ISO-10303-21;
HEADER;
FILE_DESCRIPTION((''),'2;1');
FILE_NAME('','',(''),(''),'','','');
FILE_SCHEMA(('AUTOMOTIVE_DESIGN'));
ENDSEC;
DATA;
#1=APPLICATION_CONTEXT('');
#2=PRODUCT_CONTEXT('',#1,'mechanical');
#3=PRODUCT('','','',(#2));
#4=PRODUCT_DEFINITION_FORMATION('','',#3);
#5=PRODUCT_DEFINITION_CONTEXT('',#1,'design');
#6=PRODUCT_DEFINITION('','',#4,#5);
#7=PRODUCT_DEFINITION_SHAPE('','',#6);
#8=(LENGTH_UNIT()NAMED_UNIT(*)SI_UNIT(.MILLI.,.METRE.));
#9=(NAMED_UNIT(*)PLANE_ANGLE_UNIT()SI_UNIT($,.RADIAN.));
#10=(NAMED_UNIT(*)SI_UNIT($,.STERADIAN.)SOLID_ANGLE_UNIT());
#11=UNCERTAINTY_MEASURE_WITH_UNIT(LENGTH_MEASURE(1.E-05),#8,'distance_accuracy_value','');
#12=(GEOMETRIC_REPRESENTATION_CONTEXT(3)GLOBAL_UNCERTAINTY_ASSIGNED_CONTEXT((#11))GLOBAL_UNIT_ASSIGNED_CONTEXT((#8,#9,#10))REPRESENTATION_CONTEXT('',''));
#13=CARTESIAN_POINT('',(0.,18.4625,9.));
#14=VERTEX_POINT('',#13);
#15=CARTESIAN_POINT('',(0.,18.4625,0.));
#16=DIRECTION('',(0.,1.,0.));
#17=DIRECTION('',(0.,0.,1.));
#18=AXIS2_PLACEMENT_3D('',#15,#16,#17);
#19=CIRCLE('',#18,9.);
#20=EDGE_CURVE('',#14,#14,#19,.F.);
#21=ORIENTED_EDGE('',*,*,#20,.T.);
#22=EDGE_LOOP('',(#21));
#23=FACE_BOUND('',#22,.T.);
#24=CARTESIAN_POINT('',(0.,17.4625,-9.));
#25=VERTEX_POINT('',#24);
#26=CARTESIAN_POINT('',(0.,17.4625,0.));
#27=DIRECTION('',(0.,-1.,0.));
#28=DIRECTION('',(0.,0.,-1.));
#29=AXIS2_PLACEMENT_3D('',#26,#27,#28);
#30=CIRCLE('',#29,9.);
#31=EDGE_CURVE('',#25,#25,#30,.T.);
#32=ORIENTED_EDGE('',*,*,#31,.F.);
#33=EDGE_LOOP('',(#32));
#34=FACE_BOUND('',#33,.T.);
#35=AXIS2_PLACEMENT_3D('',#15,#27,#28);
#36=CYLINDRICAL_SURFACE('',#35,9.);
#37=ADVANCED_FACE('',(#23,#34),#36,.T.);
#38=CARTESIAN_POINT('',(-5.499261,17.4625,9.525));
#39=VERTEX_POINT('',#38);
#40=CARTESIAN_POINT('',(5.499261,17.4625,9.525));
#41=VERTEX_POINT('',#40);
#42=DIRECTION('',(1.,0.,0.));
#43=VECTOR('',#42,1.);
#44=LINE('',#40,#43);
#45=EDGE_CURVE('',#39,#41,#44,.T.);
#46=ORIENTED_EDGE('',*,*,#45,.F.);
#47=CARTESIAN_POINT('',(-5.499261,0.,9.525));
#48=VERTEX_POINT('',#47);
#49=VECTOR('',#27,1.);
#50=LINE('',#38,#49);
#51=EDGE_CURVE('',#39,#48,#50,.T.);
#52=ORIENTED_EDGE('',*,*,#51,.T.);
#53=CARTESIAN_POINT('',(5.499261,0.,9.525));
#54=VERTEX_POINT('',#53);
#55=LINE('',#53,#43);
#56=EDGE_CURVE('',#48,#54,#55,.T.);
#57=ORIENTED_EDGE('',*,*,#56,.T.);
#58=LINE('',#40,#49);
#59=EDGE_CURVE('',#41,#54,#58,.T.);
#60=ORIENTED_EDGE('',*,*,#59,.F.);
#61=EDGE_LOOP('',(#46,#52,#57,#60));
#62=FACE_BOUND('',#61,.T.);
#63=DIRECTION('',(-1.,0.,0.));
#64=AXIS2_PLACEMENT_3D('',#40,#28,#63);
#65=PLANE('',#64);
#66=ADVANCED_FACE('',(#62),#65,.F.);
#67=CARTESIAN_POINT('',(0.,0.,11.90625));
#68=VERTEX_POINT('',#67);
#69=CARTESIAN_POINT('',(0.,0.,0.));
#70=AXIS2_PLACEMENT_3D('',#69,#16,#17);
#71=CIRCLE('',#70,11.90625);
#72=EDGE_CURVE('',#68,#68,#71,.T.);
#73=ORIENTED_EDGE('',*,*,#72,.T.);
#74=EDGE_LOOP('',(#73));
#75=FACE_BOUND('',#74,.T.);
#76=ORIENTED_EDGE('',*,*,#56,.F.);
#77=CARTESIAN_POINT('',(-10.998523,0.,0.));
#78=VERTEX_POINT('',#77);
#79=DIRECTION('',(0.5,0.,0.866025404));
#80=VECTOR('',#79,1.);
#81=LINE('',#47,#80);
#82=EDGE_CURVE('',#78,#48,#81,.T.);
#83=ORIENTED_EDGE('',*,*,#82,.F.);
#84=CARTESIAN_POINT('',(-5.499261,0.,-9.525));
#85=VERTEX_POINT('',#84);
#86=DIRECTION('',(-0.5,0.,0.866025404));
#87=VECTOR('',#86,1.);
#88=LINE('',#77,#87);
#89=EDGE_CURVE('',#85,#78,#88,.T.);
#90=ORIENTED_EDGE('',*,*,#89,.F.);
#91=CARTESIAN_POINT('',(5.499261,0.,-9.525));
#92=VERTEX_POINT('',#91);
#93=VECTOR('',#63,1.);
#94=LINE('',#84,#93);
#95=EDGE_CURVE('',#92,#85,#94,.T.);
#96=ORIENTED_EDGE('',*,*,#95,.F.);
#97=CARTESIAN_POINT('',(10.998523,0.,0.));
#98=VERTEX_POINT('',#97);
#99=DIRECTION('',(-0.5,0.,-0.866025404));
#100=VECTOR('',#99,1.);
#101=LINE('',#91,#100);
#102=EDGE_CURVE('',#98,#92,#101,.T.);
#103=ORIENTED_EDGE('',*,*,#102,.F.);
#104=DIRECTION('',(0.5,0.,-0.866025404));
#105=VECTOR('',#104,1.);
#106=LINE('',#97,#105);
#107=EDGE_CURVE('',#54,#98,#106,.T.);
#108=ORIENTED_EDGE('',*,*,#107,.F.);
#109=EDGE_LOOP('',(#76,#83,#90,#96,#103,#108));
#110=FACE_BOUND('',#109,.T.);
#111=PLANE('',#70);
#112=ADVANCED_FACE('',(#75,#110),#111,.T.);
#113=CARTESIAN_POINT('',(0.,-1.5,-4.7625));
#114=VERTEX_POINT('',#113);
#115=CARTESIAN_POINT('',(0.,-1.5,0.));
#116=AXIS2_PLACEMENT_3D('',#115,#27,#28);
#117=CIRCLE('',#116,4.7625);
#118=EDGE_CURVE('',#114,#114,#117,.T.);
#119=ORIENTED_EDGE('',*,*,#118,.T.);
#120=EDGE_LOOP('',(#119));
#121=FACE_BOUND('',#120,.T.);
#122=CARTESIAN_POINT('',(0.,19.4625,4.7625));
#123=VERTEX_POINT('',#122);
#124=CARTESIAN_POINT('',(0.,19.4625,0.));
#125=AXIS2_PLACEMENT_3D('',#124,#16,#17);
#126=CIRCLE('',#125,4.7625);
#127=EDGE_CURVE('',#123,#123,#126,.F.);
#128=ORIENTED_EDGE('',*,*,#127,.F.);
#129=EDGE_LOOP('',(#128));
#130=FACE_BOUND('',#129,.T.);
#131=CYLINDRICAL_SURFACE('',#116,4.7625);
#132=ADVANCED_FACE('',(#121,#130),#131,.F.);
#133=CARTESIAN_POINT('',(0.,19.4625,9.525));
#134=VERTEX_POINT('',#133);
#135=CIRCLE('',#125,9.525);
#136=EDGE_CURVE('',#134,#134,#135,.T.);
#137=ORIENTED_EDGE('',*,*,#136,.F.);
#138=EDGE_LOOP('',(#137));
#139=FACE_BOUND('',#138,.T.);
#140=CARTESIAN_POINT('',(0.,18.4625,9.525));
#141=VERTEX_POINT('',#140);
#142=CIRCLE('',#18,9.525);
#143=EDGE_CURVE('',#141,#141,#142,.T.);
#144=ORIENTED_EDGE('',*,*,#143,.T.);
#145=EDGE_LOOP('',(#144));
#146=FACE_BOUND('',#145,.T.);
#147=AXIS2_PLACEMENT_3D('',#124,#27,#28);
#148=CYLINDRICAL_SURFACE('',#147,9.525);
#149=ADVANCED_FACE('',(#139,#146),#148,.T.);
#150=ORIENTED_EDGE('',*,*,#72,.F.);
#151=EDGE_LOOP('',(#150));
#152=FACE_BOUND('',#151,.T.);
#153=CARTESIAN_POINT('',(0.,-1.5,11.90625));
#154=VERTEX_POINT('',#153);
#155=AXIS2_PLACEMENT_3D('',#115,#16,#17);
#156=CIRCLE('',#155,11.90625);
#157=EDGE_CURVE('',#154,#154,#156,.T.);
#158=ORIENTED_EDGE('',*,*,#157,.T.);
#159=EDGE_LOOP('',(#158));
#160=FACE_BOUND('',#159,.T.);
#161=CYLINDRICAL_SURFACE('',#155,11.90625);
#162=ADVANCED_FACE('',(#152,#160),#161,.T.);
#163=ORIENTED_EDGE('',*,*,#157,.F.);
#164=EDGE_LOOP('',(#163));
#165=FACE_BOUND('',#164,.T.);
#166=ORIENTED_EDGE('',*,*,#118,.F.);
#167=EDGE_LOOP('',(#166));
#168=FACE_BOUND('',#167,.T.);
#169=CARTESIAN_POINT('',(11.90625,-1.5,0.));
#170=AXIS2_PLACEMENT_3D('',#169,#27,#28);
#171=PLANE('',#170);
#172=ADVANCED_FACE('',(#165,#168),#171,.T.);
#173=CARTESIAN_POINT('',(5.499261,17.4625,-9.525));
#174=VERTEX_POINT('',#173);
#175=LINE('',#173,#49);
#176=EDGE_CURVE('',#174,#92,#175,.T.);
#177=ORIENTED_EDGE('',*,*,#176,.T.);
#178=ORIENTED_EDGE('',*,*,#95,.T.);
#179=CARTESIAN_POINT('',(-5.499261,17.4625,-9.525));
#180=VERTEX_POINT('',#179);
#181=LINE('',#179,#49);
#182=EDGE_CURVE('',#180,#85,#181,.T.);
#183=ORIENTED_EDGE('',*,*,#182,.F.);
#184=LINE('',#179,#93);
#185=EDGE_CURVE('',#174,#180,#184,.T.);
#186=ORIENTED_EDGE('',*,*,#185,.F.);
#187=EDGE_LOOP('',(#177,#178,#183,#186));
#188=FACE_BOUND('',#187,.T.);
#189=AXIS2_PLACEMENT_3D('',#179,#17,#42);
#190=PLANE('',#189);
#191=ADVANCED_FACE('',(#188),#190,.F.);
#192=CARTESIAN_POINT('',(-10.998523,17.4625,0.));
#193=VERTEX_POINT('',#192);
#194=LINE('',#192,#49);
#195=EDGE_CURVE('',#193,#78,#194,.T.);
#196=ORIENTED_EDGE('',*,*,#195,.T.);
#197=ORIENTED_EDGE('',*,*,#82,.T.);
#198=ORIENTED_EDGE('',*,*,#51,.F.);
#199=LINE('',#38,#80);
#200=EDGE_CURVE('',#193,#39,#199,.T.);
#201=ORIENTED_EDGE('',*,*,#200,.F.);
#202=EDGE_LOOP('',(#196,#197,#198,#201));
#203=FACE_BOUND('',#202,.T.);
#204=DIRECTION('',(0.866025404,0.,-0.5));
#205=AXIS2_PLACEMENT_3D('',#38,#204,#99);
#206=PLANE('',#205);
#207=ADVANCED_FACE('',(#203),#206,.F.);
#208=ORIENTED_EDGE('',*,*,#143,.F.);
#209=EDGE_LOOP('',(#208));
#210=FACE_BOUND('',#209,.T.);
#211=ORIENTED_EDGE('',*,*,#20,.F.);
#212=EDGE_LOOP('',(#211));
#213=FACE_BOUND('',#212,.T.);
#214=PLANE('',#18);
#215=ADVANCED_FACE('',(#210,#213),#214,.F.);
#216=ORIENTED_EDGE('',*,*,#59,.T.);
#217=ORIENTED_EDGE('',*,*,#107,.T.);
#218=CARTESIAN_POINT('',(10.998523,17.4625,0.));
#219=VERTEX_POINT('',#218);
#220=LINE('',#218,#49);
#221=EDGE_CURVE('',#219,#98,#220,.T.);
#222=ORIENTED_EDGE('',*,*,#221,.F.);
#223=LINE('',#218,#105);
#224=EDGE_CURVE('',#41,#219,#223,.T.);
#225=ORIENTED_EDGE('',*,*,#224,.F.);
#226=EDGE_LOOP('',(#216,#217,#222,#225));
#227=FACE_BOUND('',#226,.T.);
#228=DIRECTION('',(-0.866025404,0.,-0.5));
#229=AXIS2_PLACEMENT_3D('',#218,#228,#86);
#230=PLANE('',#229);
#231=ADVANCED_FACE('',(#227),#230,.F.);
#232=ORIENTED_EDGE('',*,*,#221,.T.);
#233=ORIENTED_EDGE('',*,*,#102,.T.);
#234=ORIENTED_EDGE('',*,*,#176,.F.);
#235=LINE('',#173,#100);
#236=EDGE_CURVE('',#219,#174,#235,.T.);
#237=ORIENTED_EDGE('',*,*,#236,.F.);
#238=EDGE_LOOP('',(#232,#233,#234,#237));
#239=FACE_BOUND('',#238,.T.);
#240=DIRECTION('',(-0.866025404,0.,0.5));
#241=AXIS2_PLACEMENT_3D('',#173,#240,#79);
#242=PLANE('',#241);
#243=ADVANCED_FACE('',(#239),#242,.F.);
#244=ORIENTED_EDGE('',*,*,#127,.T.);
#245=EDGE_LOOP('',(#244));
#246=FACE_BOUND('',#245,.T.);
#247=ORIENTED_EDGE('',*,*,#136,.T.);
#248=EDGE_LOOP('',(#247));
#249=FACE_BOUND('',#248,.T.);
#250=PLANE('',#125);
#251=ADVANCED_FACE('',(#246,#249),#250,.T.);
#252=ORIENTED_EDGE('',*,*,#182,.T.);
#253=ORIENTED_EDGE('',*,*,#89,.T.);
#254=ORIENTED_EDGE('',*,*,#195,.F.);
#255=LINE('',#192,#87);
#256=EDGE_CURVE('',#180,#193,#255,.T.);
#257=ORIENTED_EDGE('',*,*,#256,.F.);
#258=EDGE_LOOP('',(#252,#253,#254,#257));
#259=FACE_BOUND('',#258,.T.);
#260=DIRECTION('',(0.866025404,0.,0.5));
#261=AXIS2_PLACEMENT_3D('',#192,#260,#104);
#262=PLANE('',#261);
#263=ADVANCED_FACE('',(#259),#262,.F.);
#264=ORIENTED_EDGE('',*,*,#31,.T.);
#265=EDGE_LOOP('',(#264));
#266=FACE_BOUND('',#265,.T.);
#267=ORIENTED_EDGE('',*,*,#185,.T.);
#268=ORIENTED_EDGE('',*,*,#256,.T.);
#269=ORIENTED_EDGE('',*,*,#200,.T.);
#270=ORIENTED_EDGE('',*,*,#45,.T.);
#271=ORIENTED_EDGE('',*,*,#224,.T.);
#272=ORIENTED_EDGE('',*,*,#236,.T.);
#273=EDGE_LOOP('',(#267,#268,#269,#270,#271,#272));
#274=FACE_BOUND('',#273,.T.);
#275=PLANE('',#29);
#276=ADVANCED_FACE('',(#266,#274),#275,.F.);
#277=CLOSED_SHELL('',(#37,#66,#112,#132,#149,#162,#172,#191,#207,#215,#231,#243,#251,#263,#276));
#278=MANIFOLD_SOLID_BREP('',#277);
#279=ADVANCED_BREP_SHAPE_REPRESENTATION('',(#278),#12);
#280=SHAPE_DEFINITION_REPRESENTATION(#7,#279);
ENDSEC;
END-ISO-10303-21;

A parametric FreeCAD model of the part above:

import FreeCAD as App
import Part
import Sketcher
Q = App.Units.Quantity

doc = App.newDocument("Part")
body = doc.addObject("PartDesign::Body", "Body")

sketch1 = body.newObject("Sketcher::SketchObject", "Sketch")
sketch1.AttachmentSupport = (doc.getObject("XY_Plane"), [""])
sketch1.MapMode = "FlatFace"
sketch1.addGeometry([
    Part.LineSegment(App.Vector(11.9, 0, 0), App.Vector(11.9, -1.5, 0)),
    Part.LineSegment(App.Vector(11.9, -1.5, 0), App.Vector(0, -1.5, 0)),
    Part.LineSegment(App.Vector(0, -1.5, 0), App.Vector(0, 0, 0)),
    Part.LineSegment(App.Vector(0, 0, 0), App.Vector(11.9, 0, 0)),
], False)
sketch1.addConstraint([
    Sketcher.Constraint("Coincident", 0, 2, 1, 1),
    Sketcher.Constraint("Coincident", 1, 2, 2, 1),
    Sketcher.Constraint("Coincident", 2, 2, 3, 1),
    Sketcher.Constraint("Coincident", 3, 2, 0, 1),
    Sketcher.Constraint("Vertical", 0),
    Sketcher.Constraint("Horizontal", 1),
    Sketcher.Constraint("Vertical", 2),
    Sketcher.Constraint("Horizontal", 3),
    Sketcher.Constraint("Coincident", 2, 2, -1, 1),
    Sketcher.Constraint("DistanceX", 1, 2, 1, 1, Q("0.46875 in")),
    Sketcher.Constraint("DistanceY", 0, 2, 0, 1, Q("1.5 mm")),
])
revolution = body.newObject("PartDesign::Revolution", "Revolution")
revolution.Profile = sketch1
revolution.ReferenceAxis = (sketch1, ["V_Axis"])
revolution.Angle = 360

sketch2 = body.newObject("Sketcher::SketchObject", "Sketch001")
sketch2.AttachmentSupport = (doc.getObject("XZ_Plane"), [""])
sketch2.MapMode = "FlatFace"
sketch2.addGeometry([
    Part.LineSegment(App.Vector(-5, -10, 0), App.Vector(-11, 0, 0)),
    Part.LineSegment(App.Vector(-11, 0, 0), App.Vector(-5, 10, 0)),
    Part.LineSegment(App.Vector(-5, 10, 0), App.Vector(5, 10, 0)),
    Part.LineSegment(App.Vector(5, 10, 0), App.Vector(11, 0, 0)),
    Part.LineSegment(App.Vector(11, 0, 0), App.Vector(5, -10, 0)),
    Part.LineSegment(App.Vector(5, -10, 0), App.Vector(-5, -10, 0)),
], False)
sketch2.addConstraint([
    Sketcher.Constraint("Coincident", 0, 2, 1, 1),
    Sketcher.Constraint("Coincident", 1, 2, 2, 1),
    Sketcher.Constraint("Coincident", 2, 2, 3, 1),
    Sketcher.Constraint("Coincident", 3, 2, 4, 1),
    Sketcher.Constraint("Coincident", 4, 2, 5, 1),
    Sketcher.Constraint("Coincident", 5, 2, 0, 1),
    Sketcher.Constraint("Horizontal", 2),
    Sketcher.Constraint("Horizontal", 5),
    Sketcher.Constraint("Symmetric", 0, 2, 3, 2, -1, 1),
    Sketcher.Constraint("Symmetric", 1, 2, 4, 2, -1, 1),
    Sketcher.Constraint("PointOnObject", 0, 2, -1),
    Sketcher.Constraint("Parallel", 0, 3),
    Sketcher.Constraint("Vertical", 2, 2, 4, 2),
    Sketcher.Constraint("Angle", 0, Q("120 deg")),
    Sketcher.Constraint("DistanceY", 4, 2, 2, 2, Q("0.75 in")),
    Sketcher.Constraint("DistanceX", 2, 1, 2, 2, Q("10.998523 mm")),
])
pad1 = body.newObject("PartDesign::Pad", "Pad")
pad1.Profile = sketch2
pad1.Length = Q("0.6875 in")
pad1.Reversed = True

sketch3 = body.newObject("Sketcher::SketchObject", "Sketch002")
sketch3.AttachmentSupport = (doc.getObject("XY_Plane"), [""])
sketch3.MapMode = "FlatFace"
sketch3.addGeometry([
    Part.LineSegment(App.Vector(0, 18.5, 0), App.Vector(0, 17.5, 0)),
    Part.LineSegment(App.Vector(0, 17.5, 0), App.Vector(9, 17.5, 0)),
    Part.LineSegment(App.Vector(9, 17.5, 0), App.Vector(9, 18.5, 0)),
    Part.LineSegment(App.Vector(9, 18.5, 0), App.Vector(0, 18.5, 0)),
], False)
sketch3.addConstraint([
    Sketcher.Constraint("Coincident", 0, 2, 1, 1),
    Sketcher.Constraint("Coincident", 1, 2, 2, 1),
    Sketcher.Constraint("Coincident", 2, 2, 3, 1),
    Sketcher.Constraint("Coincident", 3, 2, 0, 1),
    Sketcher.Constraint("Vertical", 0),
    Sketcher.Constraint("Horizontal", 1),
    Sketcher.Constraint("Vertical", 2),
    Sketcher.Constraint("Horizontal", 3),
    Sketcher.Constraint("PointOnObject", 0, 2, -2),
    Sketcher.Constraint("DistanceY", -1, 1, 0, 2, Q("0.6875 in")),
    Sketcher.Constraint("DistanceX", 1, 1, 1, 2, Q("9 mm")),
    Sketcher.Constraint("DistanceY", 0, 2, 0, 1, Q("1 mm")),
])
revolution2 = body.newObject("PartDesign::Revolution", "Revolution001")
revolution2.Profile = sketch3
revolution2.ReferenceAxis = (sketch3, ["V_Axis"])
revolution2.Angle = 360

sketch4 = body.newObject("Sketcher::SketchObject", "Sketch003")
sketch4.AttachmentSupport = (doc.getObject("XZ_Plane"), [""])
sketch4.MapMode = "FlatFace"
sketch4.AttachmentOffset = App.Placement(App.Vector(0, 0, -18.4625), App.Rotation())
sketch4.addGeometry(Part.Circle(App.Vector(0, 0, 0), App.Vector(0, 0, 1), 10), False)
sketch4.addConstraint([
    Sketcher.Constraint("Coincident", 0, 3, -1, 1),
    Sketcher.Constraint("Diameter", 0, Q("0.75 in")),
])
pad2 = body.newObject("PartDesign::Pad", "Pad001")
pad2.Profile = sketch4
pad2.Length = 1
pad2.Reversed = True

sketch5 = body.newObject("Sketcher::SketchObject", "Sketch004")
sketch5.AttachmentSupport = (doc.getObject("XZ_Plane"), [""])
sketch5.MapMode = "FlatFace"
sketch5.AttachmentOffset = App.Placement(App.Vector(0, 0, 1.5), App.Rotation())
sketch5.addGeometry(Part.Circle(App.Vector(0, 0, 0), App.Vector(0, 0, 1), 4.8), False)
sketch5.addConstraint([
    Sketcher.Constraint("Coincident", 0, 3, -1, 1),
    Sketcher.Constraint("Diameter", 0, Q("0.375 in")),
])
doc.recompute()
hole = body.newObject("PartDesign::Hole", "Hole")
hole.Profile = sketch5
hole.ThreadType = "None"
hole.Diameter = Q("0.375 in")
hole.DepthType = "ThroughAll"

doc.recompute()
